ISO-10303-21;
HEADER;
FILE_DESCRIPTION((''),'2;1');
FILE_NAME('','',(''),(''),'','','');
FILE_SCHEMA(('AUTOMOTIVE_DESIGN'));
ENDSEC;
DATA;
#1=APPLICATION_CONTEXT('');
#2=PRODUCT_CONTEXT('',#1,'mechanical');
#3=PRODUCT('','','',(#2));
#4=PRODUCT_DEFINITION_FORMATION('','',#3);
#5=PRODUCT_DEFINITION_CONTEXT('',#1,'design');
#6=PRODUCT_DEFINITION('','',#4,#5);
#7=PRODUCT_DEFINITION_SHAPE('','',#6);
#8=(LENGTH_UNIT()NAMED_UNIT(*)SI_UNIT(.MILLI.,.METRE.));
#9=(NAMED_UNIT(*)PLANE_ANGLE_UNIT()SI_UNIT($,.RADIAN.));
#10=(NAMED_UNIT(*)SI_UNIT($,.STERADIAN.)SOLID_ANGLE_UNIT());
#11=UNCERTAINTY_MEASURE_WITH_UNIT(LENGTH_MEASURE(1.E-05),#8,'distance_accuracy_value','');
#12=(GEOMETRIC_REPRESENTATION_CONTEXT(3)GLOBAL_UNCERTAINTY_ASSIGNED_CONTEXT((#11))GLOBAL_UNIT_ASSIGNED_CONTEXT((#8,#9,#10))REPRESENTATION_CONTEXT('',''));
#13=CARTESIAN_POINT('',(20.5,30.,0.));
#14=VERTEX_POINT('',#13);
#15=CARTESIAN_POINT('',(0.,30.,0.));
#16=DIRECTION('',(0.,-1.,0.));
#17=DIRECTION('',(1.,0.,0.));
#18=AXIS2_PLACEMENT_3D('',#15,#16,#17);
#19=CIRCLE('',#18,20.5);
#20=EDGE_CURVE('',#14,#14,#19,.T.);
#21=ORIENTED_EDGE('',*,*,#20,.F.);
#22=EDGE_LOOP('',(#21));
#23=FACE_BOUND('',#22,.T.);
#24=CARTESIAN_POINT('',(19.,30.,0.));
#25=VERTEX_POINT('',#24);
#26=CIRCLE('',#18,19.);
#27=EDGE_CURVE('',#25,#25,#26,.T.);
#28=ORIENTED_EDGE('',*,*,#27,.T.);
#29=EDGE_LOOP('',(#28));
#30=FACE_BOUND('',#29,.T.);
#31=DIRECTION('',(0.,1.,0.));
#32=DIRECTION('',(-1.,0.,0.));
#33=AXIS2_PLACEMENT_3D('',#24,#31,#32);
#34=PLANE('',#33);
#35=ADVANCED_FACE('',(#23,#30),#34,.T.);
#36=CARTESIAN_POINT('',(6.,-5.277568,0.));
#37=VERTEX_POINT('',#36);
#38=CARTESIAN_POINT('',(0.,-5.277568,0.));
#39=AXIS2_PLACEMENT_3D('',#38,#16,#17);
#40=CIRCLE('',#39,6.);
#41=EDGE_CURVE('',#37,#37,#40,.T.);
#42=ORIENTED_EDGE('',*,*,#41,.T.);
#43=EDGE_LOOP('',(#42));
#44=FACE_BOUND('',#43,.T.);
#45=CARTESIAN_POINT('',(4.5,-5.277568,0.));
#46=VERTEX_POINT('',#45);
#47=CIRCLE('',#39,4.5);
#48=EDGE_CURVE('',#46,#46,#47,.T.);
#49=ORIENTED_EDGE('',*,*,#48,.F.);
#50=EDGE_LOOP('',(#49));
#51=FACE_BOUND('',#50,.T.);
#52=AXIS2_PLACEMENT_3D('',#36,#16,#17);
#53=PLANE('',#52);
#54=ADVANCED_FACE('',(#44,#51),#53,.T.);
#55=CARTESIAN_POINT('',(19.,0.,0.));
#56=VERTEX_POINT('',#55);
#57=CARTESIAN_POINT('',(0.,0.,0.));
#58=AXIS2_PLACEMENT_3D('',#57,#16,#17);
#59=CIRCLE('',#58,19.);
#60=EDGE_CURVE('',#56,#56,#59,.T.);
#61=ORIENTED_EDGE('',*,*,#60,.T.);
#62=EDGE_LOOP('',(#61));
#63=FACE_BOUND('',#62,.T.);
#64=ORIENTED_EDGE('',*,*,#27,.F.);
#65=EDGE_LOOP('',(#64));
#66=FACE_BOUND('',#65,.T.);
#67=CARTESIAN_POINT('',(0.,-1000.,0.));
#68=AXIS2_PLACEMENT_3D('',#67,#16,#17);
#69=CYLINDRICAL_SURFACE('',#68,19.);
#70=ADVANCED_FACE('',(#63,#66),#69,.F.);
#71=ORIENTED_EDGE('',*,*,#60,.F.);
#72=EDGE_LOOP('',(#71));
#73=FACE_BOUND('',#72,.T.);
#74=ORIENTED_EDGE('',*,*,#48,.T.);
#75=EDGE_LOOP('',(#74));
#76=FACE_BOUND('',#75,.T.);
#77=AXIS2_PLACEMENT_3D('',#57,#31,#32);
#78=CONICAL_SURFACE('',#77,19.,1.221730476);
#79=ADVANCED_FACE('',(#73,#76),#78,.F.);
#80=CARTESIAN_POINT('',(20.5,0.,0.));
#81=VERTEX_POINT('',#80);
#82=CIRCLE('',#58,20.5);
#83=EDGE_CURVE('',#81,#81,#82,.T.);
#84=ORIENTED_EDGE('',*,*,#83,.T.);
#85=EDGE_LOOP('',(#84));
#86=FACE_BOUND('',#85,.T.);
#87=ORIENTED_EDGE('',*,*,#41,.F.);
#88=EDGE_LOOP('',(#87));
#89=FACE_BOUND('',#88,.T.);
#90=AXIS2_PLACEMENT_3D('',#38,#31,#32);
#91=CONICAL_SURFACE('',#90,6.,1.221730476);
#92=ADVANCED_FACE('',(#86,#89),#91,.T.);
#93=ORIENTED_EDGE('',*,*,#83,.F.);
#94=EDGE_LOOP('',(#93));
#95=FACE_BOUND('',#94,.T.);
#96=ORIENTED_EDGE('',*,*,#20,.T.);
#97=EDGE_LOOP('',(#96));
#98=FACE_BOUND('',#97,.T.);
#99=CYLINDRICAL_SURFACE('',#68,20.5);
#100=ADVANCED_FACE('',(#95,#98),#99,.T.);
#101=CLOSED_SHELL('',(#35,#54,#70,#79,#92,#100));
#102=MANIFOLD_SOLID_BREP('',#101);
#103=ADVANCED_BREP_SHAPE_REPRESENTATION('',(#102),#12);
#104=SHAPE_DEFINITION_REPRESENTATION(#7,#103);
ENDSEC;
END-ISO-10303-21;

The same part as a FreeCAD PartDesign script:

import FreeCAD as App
import Part
import Sketcher
from FreeCAD import Vector
Q = App.Units.Quantity


def add_polygon(sketch, points):
    """Adds a closed chain of lines whose ends are joined by coincident constraints."""
    first, n = sketch.GeometryCount, len(points)
    for a, b in zip(points, points[1:] + points[:1]):
        sketch.addGeometry(Part.LineSegment(App.Vector(*a, 0), App.Vector(*b, 0)), False)
    for i in range(n):
        sketch.addConstraint(Sketcher.Constraint("Coincident", first + i, 2, first + (i + 1) % n, 1))

doc = App.newDocument("Part")
body = doc.addObject("PartDesign::Body", "Body")

# Sketch on XY plane
sketch1 = doc.addObject("Sketcher::SketchObject", "Sketch")
body.addObject(sketch1)
sketch1.AttachmentSupport = (doc.XY_Plane, [""])
sketch1.MapMode = "FlatFace"
add_polygon(sketch1, [(20.5, 0), (20.5, 30), (19, 30), (19, 0), (4.5, -5.3), (6, -5.3)])  # lines 0-5
sketch1.addConstraint(Sketcher.Constraint("Vertical", 0))
sketch1.addConstraint(Sketcher.Constraint("Horizontal", 1))
sketch1.addConstraint(Sketcher.Constraint("Vertical", 2))
sketch1.addConstraint(Sketcher.Constraint("Horizontal", 4))
sketch1.addConstraint(Sketcher.Constraint("PointOnObject", 2, 2, -1))
sketch1.addConstraint(Sketcher.Constraint("PointOnObject", 5, 2, -1))
sketch1.addConstraint(Sketcher.Constraint("Parallel", 3, 5))
sketch1.addConstraint(Sketcher.Constraint("DistanceY", 0, 1, 0, 2, Q("30 mm")))
sketch1.addConstraint(Sketcher.Constraint("Angle", 3, Q("-160 deg")))
sketch1.addConstraint(Sketcher.Constraint("DistanceX", 1, 2, 1, 1, Q("1.5 mm")))
sketch1.addConstraint(Sketcher.Constraint("DistanceX", -1, 1, 1, 2, Q("19 mm")))
sketch1.addConstraint(Sketcher.Constraint("DistanceX", -1, 1, 4, 2, Q("6 mm")))
revolution = doc.addObject("PartDesign::Revolution", "Revolution")
body.addObject(revolution)
revolution.Profile = sketch1
revolution.ReferenceAxis = (sketch1, ["V_Axis"])
revolution.Angle = 360

doc.recompute()
